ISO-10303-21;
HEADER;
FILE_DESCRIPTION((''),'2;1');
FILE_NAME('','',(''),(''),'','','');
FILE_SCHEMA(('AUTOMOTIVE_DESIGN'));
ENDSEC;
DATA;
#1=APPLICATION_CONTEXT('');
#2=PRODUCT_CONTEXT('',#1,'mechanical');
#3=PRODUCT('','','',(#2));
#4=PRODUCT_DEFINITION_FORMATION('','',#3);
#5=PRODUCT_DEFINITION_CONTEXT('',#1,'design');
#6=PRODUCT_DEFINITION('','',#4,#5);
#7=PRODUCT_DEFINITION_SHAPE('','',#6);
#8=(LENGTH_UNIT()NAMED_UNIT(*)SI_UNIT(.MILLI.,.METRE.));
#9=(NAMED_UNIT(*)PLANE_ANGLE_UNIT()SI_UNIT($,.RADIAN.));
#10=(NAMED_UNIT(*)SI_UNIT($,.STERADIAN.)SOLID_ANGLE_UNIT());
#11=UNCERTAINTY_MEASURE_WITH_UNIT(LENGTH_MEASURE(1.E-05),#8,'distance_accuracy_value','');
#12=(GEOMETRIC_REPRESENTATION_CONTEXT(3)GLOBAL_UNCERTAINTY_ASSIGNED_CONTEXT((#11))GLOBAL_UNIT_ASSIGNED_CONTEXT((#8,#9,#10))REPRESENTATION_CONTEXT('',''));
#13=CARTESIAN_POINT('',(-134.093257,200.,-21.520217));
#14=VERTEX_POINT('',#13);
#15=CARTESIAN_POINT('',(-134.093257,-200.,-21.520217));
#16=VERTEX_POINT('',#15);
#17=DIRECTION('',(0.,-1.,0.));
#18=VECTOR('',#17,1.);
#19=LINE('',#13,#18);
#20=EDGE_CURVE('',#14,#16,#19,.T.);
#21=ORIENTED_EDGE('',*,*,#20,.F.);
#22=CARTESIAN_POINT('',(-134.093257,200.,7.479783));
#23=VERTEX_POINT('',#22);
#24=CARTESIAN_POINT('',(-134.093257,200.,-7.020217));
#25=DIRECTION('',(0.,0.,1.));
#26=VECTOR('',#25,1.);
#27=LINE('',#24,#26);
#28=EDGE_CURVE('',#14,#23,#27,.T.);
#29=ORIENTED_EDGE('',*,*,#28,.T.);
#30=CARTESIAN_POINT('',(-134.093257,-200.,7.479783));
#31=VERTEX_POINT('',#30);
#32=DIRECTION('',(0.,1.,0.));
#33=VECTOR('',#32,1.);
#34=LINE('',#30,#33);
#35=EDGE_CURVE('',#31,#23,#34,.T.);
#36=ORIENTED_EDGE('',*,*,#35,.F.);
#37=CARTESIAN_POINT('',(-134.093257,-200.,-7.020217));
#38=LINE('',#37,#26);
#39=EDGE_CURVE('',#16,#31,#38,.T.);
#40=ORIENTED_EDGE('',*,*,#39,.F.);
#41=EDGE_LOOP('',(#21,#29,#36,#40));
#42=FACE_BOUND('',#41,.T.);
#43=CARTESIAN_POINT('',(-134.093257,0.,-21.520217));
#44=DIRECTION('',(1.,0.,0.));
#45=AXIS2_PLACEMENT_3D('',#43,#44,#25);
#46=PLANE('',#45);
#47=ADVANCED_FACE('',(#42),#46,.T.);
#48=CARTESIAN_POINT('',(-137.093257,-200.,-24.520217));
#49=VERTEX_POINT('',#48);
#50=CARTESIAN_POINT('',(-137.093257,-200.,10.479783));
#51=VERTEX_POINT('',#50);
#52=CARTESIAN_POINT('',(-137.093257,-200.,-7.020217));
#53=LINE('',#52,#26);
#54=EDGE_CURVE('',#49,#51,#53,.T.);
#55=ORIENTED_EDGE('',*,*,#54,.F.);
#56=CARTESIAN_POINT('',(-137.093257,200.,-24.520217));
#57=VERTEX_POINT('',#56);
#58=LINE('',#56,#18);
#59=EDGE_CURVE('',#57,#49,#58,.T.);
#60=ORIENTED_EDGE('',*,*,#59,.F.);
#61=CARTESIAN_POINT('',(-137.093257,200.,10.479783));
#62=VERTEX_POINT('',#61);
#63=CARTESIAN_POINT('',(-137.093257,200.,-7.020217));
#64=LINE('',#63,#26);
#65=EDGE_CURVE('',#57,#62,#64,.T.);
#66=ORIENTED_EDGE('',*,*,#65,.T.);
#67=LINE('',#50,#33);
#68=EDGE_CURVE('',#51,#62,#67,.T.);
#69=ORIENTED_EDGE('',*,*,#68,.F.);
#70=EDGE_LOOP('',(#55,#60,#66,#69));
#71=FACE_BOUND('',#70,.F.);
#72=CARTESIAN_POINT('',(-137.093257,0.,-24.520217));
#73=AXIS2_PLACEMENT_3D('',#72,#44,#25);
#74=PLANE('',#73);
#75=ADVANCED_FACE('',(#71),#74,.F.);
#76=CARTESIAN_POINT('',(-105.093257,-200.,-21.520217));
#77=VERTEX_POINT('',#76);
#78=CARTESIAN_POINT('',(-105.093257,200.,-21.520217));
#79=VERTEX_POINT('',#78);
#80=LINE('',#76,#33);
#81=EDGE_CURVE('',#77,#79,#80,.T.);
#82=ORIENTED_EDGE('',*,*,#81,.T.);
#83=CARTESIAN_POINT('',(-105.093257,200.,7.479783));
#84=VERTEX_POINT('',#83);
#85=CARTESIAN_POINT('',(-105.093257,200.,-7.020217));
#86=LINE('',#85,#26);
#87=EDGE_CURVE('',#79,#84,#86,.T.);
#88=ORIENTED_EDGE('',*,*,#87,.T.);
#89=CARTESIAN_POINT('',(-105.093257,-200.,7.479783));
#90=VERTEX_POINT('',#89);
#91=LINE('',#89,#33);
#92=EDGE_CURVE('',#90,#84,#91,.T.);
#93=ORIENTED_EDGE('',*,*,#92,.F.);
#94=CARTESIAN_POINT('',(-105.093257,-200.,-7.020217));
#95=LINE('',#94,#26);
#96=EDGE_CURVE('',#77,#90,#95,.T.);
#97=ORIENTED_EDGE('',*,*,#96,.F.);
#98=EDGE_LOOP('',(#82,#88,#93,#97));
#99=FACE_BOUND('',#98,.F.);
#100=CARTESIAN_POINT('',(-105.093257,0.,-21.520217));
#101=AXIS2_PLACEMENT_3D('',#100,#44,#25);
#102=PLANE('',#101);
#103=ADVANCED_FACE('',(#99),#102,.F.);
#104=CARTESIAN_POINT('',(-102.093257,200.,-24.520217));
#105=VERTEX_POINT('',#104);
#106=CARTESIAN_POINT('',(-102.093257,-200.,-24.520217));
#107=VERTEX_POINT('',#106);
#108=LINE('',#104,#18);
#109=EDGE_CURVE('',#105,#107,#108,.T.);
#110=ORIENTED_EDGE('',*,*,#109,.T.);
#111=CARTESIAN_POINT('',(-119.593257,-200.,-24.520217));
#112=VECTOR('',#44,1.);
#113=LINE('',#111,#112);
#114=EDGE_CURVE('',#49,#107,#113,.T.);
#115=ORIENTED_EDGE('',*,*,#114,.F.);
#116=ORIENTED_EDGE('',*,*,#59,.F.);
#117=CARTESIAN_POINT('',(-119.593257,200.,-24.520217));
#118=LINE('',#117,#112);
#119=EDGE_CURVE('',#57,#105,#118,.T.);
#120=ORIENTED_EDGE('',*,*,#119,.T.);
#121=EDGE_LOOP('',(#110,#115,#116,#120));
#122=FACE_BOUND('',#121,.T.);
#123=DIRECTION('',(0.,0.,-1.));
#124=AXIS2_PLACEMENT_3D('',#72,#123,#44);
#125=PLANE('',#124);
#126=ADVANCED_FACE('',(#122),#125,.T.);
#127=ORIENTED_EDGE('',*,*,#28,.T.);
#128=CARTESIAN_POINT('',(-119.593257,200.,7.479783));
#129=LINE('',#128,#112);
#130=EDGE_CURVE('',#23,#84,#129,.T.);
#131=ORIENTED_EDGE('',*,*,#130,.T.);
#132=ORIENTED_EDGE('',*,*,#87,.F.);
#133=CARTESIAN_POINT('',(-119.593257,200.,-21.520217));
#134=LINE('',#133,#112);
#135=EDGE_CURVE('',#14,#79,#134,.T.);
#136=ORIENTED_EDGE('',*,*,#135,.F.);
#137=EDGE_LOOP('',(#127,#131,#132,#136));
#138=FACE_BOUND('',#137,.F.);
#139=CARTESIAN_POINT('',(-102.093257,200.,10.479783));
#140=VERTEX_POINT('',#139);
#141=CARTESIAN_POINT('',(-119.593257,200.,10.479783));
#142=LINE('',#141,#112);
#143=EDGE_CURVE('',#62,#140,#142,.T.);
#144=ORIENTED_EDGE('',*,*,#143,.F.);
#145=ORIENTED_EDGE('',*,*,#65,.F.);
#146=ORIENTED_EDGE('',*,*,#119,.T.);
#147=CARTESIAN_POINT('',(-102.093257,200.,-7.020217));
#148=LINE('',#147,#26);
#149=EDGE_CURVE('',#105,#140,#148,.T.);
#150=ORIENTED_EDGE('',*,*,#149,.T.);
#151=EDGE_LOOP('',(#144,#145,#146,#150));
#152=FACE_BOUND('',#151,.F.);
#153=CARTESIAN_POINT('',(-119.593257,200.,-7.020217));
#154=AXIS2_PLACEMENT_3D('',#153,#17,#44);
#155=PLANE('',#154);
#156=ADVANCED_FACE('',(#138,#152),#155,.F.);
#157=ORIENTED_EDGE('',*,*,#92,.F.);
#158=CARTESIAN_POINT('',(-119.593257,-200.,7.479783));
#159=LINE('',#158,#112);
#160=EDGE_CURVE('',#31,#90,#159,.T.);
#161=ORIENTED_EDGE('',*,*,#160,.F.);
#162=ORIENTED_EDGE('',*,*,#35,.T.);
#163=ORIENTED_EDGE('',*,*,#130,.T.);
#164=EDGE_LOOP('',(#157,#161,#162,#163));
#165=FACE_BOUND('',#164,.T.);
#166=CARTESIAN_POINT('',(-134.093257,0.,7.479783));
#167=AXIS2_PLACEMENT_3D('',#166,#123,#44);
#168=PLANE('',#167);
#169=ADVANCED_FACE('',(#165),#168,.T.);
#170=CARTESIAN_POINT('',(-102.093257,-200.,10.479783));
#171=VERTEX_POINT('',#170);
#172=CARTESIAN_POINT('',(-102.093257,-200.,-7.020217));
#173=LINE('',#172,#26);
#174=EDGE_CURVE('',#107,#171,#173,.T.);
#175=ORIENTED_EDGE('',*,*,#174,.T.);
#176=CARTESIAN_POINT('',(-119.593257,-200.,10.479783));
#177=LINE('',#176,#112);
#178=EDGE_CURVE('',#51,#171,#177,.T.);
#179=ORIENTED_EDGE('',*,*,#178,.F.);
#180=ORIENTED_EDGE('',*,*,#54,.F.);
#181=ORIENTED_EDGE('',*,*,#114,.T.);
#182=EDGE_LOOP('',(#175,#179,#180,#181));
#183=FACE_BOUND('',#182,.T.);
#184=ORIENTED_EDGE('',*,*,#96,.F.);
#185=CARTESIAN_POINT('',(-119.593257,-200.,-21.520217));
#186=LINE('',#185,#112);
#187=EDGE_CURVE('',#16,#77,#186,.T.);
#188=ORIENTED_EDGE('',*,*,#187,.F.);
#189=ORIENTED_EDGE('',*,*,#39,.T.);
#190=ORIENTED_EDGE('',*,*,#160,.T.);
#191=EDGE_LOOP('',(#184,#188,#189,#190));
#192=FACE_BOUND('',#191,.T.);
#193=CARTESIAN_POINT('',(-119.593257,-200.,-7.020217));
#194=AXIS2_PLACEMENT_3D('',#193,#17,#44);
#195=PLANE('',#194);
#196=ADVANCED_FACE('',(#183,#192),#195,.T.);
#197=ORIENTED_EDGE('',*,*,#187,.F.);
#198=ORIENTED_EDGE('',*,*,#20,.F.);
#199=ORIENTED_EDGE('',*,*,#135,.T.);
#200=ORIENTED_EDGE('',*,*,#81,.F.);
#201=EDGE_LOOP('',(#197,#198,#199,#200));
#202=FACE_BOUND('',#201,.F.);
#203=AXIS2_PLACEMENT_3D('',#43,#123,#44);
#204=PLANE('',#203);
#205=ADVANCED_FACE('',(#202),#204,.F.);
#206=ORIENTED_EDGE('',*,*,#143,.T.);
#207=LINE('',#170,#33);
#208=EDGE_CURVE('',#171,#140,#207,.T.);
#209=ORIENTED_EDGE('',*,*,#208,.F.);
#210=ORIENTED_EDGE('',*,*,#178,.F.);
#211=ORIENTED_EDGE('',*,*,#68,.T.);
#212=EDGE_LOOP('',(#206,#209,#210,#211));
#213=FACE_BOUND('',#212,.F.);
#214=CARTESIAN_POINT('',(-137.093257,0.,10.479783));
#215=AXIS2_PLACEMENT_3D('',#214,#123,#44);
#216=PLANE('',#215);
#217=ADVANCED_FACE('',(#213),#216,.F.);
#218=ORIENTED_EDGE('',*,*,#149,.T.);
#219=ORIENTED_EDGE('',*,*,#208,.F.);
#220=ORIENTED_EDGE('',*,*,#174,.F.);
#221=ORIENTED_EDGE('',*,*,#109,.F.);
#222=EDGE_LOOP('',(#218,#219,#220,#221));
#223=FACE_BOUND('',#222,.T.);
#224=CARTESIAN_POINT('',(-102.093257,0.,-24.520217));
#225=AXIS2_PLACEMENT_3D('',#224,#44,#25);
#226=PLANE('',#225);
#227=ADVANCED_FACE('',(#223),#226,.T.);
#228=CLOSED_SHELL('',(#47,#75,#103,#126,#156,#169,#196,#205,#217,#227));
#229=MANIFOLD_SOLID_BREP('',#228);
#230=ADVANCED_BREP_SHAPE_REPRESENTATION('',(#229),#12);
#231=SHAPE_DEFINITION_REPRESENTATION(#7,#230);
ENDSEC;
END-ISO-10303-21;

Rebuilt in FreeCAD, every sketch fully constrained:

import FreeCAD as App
import Part
import Sketcher

V = App.Vector
Q = App.Units.Quantity


def add_polygon(sketch, points):
    """Adds a closed chain of lines whose ends are joined by coincident constraints."""
    first, n = sketch.GeometryCount, len(points)
    for a, b in zip(points, points[1:] + points[:1]):
        sketch.addGeometry(Part.LineSegment(App.Vector(*a, 0), App.Vector(*b, 0)), False)
    for i in range(n):
        sketch.addConstraint(Sketcher.Constraint("Coincident", first + i, 2, first + (i + 1) % n, 1))

doc = App.newDocument("Part")
body = doc.addObject("PartDesign::Body", "Body")

# Sketch on XZ plane
sketch1 = doc.addObject("Sketcher::SketchObject", "Sketch")
body.addObject(sketch1)
sketch1.AttachmentSupport = (doc.XZ_Plane, [""])
sketch1.MapMode = "FlatFace"
add_polygon(sketch1, [(-137, 10), (-137, -25), (-102, -25), (-102, 10)])  # lines 0-3
add_polygon(sketch1, [(-105, -22), (-134, -22), (-134, 7), (-105, 7)])  # lines 4-7
sketch1.addConstraint([
    Sketcher.Constraint("Vertical", 0),
    Sketcher.Constraint("Horizontal", 1),
    Sketcher.Constraint("Vertical", 2),
    Sketcher.Constraint("Horizontal", 3),
    Sketcher.Constraint("Horizontal", 4),
    Sketcher.Constraint("Vertical", 5),
    Sketcher.Constraint("Horizontal", 6),
    Sketcher.Constraint("Vertical", 7),
    Sketcher.Constraint("Equal", 3, 0),
    Sketcher.Constraint("Equal", 6, 5),
    Sketcher.Constraint("DistanceX", 1, 1, 1, 2, Q("35 mm")),
    Sketcher.Constraint("DistanceX", 4, 2, 4, 1, Q("29 mm")),
    Sketcher.Constraint("DistanceX", 0, 2, 4, 2, Q("3 mm")),
    Sketcher.Constraint("DistanceY", 0, 2, 4, 2, Q("3 mm")),
    Sketcher.Constraint("DistanceX", 0, 2, -1, 1, Q("137.093257 mm")),
    Sketcher.Constraint("DistanceY", 0, 2, -1, 1, Q("24.520217 mm")),
])
pad1 = doc.addObject("PartDesign::Pad", "Pad")
body.addObject(pad1)
pad1.Profile = sketch1
pad1.Length = 400
pad1.Midplane = True

doc.recompute()
